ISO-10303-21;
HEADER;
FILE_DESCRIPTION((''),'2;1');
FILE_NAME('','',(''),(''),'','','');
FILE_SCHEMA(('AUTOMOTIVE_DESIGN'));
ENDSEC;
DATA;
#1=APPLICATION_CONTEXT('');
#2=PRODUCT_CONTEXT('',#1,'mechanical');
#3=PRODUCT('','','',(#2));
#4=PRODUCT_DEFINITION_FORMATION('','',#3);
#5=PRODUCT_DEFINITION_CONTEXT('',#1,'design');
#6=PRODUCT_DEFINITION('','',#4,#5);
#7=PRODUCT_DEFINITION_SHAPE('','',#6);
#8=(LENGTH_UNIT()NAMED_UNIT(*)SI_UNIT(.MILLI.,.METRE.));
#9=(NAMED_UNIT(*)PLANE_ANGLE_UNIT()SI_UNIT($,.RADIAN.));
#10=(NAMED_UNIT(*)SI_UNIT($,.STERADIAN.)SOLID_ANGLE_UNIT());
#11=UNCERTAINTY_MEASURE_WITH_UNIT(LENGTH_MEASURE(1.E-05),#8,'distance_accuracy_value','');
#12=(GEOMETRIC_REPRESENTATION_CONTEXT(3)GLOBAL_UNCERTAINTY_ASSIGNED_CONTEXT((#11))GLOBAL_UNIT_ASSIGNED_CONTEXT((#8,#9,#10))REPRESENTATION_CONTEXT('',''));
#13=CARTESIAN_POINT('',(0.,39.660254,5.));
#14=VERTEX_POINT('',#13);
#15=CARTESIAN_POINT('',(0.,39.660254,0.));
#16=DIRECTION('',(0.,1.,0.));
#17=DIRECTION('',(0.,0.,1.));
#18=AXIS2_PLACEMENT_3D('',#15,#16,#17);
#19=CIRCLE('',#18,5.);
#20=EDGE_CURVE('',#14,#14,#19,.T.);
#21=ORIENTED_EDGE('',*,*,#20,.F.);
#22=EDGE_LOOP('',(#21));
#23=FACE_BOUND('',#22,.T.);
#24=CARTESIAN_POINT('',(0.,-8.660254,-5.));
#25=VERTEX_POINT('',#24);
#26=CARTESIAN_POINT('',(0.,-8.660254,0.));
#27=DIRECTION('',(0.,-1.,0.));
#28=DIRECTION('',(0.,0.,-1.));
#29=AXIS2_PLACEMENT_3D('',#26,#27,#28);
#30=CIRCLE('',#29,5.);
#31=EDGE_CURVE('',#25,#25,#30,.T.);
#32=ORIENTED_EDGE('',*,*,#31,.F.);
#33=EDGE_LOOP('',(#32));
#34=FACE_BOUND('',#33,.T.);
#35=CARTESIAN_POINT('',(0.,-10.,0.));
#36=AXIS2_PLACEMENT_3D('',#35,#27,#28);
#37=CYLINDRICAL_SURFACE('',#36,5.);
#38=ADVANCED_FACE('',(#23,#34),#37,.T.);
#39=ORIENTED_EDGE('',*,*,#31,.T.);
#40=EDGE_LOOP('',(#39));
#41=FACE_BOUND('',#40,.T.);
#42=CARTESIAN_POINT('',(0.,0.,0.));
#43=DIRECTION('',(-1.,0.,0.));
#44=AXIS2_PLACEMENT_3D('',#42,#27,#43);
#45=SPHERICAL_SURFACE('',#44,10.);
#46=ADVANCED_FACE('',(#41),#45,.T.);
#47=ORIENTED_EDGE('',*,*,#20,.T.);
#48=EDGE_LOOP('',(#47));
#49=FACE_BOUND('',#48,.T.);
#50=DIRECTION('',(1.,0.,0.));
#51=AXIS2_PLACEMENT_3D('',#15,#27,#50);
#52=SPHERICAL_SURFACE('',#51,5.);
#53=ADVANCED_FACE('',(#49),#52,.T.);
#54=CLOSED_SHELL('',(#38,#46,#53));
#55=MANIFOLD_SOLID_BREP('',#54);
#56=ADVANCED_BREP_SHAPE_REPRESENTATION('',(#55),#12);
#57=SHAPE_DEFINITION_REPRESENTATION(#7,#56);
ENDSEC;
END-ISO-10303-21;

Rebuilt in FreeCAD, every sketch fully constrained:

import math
import FreeCAD as App
import Part
import Sketcher

doc = App.newDocument("Part")
params = doc.addObject("Spreadsheet::Sheet", "Params")
for row, (alias, value) in enumerate([
    ("sketch1_radius", "10 mm"),
    ("sketch1_height", "51 mm"),
    ("revolution_angle", "360 deg"),
    ("sketch2_radius", "5 mm"),
    ("revolution2_angle", "360 deg"),
], start=1):
    params.set(f"A{row}", alias)
    params.set(f"B{row}", "=" + value)
    params.setAlias(f"B{row}", alias)

body = doc.addObject("PartDesign::Body", "Body")

sketch1 = body.newObject("Sketcher::SketchObject", "Sketch")
sketch1.AttachmentSupport = (doc.getObject("XY_Plane"), [""])
sketch1.MapMode = "FlatFace"
sketch1.addGeometry([
    Part.LineSegment(App.Vector(0, 41, 0), App.Vector(0, -10, 0)),
    Part.ArcOfCircle(Part.Circle(App.Vector(0, 0, 0), App.Vector(0, 0, 1), 10), math.radians(-90), math.radians(-60)),
    Part.LineSegment(App.Vector(5, -8.660254, 0), App.Vector(5, 39.660254, 0)),
    Part.ArcOfCircle(Part.Circle(App.Vector(0, 31, 0), App.Vector(0, 0, 1), 10), math.radians(60), math.radians(90)),
], False)
sketch1.addConstraint([
    Sketcher.Constraint("Coincident", 0, 2, 1, 1),
    Sketcher.Constraint("Coincident", 1, 2, 2, 1),
    Sketcher.Constraint("Coincident", 2, 2, 3, 1),
    Sketcher.Constraint("Coincident", 3, 2, 0, 1),
    Sketcher.Constraint("Vertical", 0),
    Sketcher.Constraint("Vertical", 2),
    Sketcher.Constraint("Coincident", 1, 3, -1, 1),
    Sketcher.Constraint("Equal", 1, 3),
    Sketcher.Constraint("PointOnObject", 3, 3, -2),
    Sketcher.Constraint("PointOnObject", 0, 2, -2),
    Sketcher.Constraint("Radius", 1, 10.0),
    Sketcher.Constraint("DistanceY", 0, 2, 0, 1, 51.0),
    Sketcher.Constraint("DistanceX", -1, 1, 1, 2, 5.0),
])
sketch1.setExpression("Constraints[10]", "Params.sketch1_radius")
sketch1.setExpression("Constraints[11]", "Params.sketch1_height")
revolution = body.newObject("PartDesign::Revolution", "Revolution")
revolution.Profile = sketch1
revolution.ReferenceAxis = (sketch1, ["V_Axis"])
revolution.setExpression("Angle", "Params.revolution_angle")

sketch2 = body.newObject("Sketcher::SketchObject", "Sketch001")
sketch2.AttachmentSupport = (doc.getObject("XY_Plane"), [""])
sketch2.MapMode = "FlatFace"
sketch2.addGeometry([
    Part.LineSegment(App.Vector(0, 44.660254, 0), App.Vector(0, 34.660254, 0)),
    Part.ArcOfCircle(Part.Circle(App.Vector(0, 39.660254, 0), App.Vector(0, 0, 1), 5), math.radians(-90), math.radians(90)),
], False)
sketch2.addConstraint([
    Sketcher.Constraint("Coincident", 0, 1, 1, 2),
    Sketcher.Constraint("Coincident", 1, 1, 0, 2),
    Sketcher.Constraint("Vertical", 0),
    Sketcher.Constraint("PointOnObject", 1, 3, -2),
    Sketcher.Constraint("PointOnObject", 0, 1, -2),
    Sketcher.Constraint("Radius", 1, 5.0),
    Sketcher.Constraint("DistanceY", -1, 1, 1, 3, 39.660254),
])
sketch2.setExpression("Constraints[5]", "Params.sketch2_radius")
revolution2 = body.newObject("PartDesign::Revolution", "Revolution001")
revolution2.Profile = sketch2
revolution2.ReferenceAxis = (sketch2, ["V_Axis"])
revolution2.setExpression("Angle", "Params.revolution2_angle")

doc.recompute()
